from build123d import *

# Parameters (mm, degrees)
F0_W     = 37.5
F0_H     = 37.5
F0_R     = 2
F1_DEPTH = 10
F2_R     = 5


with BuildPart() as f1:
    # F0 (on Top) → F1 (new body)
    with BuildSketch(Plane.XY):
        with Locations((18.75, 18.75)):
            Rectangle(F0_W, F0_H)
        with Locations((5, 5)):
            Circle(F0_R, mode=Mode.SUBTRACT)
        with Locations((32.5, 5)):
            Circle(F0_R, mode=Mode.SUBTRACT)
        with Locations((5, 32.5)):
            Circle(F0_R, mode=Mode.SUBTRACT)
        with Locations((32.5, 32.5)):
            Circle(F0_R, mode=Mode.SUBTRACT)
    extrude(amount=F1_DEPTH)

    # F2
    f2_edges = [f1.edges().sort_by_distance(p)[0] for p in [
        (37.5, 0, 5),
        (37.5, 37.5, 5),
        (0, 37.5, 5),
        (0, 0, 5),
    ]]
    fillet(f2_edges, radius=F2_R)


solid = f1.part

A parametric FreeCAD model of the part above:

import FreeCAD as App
import Part
import Sketcher


def edges_at(feature, points):
    """Names of the edges that pass closest to the given points."""
    edges = feature.Shape.Edges
    near = lambda p: min(range(len(edges)), key=lambda i: edges[i].distToShape(Part.Vertex(*p))[0])
    return sorted({f"Edge{near(p) + 1}" for p in points})

doc = App.newDocument("Part")
body = doc.addObject("PartDesign::Body", "Body")

# Sketch on XY plane
sketch1 = body.newObject("Sketcher::SketchObject", "Sketch")
sketch1.AttachmentSupport = (doc.getObject("XY_Plane"), [""])
sketch1.MapMode = "FlatFace"
sketch1.addGeometry(Part.LineSegment(App.Vector(0, 37.5, 0), App.Vector(0, 0, 0)), False)
sketch1.addGeometry(Part.LineSegment(App.Vector(0, 0, 0), App.Vector(37.5, 0, 0)), False)
sketch1.addGeometry(Part.LineSegment(App.Vector(37.5, 0, 0), App.Vector(37.5, 37.5, 0)), False)
sketch1.addGeometry(Part.LineSegment(App.Vector(37.5, 37.5, 0), App.Vector(0, 37.5, 0)), False)
sketch1.addGeometry(Part.Circle(App.Vector(5, 5, 0), App.Vector(0, 0, 1), 2), False)
sketch1.addGeometry(Part.Circle(App.Vector(32.5, 5, 0), App.Vector(0, 0, 1), 2), False)
sketch1.addGeometry(Part.Circle(App.Vector(5, 32.5, 0), App.Vector(0, 0, 1), 2), False)
sketch1.addGeometry(Part.Circle(App.Vector(32.5, 32.5, 0), App.Vector(0, 0, 1), 2), False)
sketch1.addConstraint(Sketcher.Constraint("Coincident", 0, 2, 1, 1))
sketch1.addConstraint(Sketcher.Constraint("Coincident", 1, 2, 2, 1))
sketch1.addConstraint(Sketcher.Constraint("Coincident", 2, 2, 3, 1))
sketch1.addConstraint(Sketcher.Constraint("Coincident", 3, 2, 0, 1))
sketch1.addConstraint(Sketcher.Constraint("Vertical", 0))
sketch1.addConstraint(Sketcher.Constraint("Horizontal", 1))
sketch1.addConstraint(Sketcher.Constraint("Vertical", 2))
sketch1.addConstraint(Sketcher.Constraint("Horizontal", 3))
sketch1.addConstraint(Sketcher.Constraint("Coincident", 0, 2, -1, 1))
sketch1.addConstraint(Sketcher.Constraint("Equal", 4, 5))
sketch1.addConstraint(Sketcher.Constraint("Equal", 5, 6))
sketch1.addConstraint(Sketcher.Constraint("Equal", 6, 7))
sketch1.addConstraint(Sketcher.Constraint("Horizontal", 4, 3, 5, 3))
sketch1.addConstraint(Sketcher.Constraint("Horizontal", 6, 3, 7, 3))
sketch1.addConstraint(Sketcher.Constraint("Vertical", 4, 3, 6, 3))
sketch1.addConstraint(Sketcher.Constraint("Vertical", 5, 3, 7, 3))
sketch1.addConstraint(Sketcher.Constraint("Equal", 3, 0))
sketch1.addConstraint(Sketcher.Constraint("Diameter", 4, 4.0))
sketch1.addConstraint(Sketcher.Constraint("DistanceX", 1, 1, 1, 2, 37.5))
sketch1.addConstraint(Sketcher.Constraint("DistanceX", -1, 1, 4, 3, 5.0))
sketch1.addConstraint(Sketcher.Constraint("DistanceY", -1, 1, 4, 3, 5.0))
sketch1.addConstraint(Sketcher.Constraint("DistanceX", 5, 3, 1, 2, 5.0))
sketch1.addConstraint(Sketcher.Constraint("DistanceY", 7, 3, 2, 2, 5.0))
pad1 = body.newObject("PartDesign::Pad", "Pad")
pad1.Profile = sketch1
pad1.Length = 10
doc.recompute()

fillet = body.newObject("PartDesign::Fillet", "Fillet")
fillet.Base = (pad1, edges_at(pad1, [
    (37.5, 0, 5),
    (37.5, 37.5, 5),
    (0, 37.5, 5),
    (0, 0, 5),
]))
fillet.Radius = 5

doc.recompute()
